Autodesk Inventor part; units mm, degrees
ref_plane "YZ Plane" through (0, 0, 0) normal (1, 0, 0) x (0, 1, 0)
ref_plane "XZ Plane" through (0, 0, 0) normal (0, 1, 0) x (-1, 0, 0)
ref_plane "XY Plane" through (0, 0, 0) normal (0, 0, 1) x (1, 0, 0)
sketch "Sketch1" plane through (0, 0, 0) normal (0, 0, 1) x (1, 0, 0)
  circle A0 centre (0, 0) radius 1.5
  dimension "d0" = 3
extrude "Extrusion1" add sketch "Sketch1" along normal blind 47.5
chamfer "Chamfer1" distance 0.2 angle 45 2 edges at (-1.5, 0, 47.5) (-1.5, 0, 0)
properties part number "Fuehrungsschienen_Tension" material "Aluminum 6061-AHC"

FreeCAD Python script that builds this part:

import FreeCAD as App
import Part
import Sketcher
Q = App.Units.Quantity


def edges_at(feature, points):
    """Names of the edges that pass closest to the given points."""
    edges = feature.Shape.Edges
    near = lambda p: min(range(len(edges)), key=lambda i: edges[i].distToShape(Part.Vertex(*p))[0])
    return sorted({f"Edge{near(p) + 1}" for p in points})

doc = App.newDocument("Part")
params = doc.addObject("Spreadsheet::Sheet", "Params")
for row, (alias, value) in enumerate([
    ("sketch1_diameter", "3 mm"),
    ("pad1_length", "47.5 mm"),
    ("chamfer_size", "0.2 mm"),
], start=1):
    params.set(f"A{row}", alias)
    params.set(f"B{row}", "=" + value)
    params.setAlias(f"B{row}", alias)

body = doc.addObject("PartDesign::Body", "Body")

# Sketch on XY plane
sketch1 = doc.addObject("Sketcher::SketchObject", "Sketch")
body.addObject(sketch1)
sketch1.AttachmentSupport = (doc.XY_Plane, [""])
sketch1.MapMode = "FlatFace"
sketch1.addGeometry(Part.Circle(App.Vector(0, 0, 0), App.Vector(0, 0, 1), 1.5), False)
sketch1.addConstraint(Sketcher.Constraint("Coincident", 0, 3, -1, 1))
sketch1.addConstraint(Sketcher.Constraint("Diameter", 0, Q("3 mm")))
sketch1.setExpression("Constraints[1]", "Params.sketch1_diameter")
pad1 = doc.addObject("PartDesign::Pad", "Pad")
body.addObject(pad1)
pad1.Profile = sketch1
pad1.setExpression("Length", "Params.pad1_length")
doc.recompute()

chamfer = doc.addObject("PartDesign::Chamfer", "Chamfer")
body.addObject(chamfer)
chamfer.Base = (pad1, edges_at(pad1, [(-1.5, 0, 47.5), (-1.5, 0, 0)]))
chamfer.setExpression("Size", "Params.chamfer_size")

doc.recompute()
